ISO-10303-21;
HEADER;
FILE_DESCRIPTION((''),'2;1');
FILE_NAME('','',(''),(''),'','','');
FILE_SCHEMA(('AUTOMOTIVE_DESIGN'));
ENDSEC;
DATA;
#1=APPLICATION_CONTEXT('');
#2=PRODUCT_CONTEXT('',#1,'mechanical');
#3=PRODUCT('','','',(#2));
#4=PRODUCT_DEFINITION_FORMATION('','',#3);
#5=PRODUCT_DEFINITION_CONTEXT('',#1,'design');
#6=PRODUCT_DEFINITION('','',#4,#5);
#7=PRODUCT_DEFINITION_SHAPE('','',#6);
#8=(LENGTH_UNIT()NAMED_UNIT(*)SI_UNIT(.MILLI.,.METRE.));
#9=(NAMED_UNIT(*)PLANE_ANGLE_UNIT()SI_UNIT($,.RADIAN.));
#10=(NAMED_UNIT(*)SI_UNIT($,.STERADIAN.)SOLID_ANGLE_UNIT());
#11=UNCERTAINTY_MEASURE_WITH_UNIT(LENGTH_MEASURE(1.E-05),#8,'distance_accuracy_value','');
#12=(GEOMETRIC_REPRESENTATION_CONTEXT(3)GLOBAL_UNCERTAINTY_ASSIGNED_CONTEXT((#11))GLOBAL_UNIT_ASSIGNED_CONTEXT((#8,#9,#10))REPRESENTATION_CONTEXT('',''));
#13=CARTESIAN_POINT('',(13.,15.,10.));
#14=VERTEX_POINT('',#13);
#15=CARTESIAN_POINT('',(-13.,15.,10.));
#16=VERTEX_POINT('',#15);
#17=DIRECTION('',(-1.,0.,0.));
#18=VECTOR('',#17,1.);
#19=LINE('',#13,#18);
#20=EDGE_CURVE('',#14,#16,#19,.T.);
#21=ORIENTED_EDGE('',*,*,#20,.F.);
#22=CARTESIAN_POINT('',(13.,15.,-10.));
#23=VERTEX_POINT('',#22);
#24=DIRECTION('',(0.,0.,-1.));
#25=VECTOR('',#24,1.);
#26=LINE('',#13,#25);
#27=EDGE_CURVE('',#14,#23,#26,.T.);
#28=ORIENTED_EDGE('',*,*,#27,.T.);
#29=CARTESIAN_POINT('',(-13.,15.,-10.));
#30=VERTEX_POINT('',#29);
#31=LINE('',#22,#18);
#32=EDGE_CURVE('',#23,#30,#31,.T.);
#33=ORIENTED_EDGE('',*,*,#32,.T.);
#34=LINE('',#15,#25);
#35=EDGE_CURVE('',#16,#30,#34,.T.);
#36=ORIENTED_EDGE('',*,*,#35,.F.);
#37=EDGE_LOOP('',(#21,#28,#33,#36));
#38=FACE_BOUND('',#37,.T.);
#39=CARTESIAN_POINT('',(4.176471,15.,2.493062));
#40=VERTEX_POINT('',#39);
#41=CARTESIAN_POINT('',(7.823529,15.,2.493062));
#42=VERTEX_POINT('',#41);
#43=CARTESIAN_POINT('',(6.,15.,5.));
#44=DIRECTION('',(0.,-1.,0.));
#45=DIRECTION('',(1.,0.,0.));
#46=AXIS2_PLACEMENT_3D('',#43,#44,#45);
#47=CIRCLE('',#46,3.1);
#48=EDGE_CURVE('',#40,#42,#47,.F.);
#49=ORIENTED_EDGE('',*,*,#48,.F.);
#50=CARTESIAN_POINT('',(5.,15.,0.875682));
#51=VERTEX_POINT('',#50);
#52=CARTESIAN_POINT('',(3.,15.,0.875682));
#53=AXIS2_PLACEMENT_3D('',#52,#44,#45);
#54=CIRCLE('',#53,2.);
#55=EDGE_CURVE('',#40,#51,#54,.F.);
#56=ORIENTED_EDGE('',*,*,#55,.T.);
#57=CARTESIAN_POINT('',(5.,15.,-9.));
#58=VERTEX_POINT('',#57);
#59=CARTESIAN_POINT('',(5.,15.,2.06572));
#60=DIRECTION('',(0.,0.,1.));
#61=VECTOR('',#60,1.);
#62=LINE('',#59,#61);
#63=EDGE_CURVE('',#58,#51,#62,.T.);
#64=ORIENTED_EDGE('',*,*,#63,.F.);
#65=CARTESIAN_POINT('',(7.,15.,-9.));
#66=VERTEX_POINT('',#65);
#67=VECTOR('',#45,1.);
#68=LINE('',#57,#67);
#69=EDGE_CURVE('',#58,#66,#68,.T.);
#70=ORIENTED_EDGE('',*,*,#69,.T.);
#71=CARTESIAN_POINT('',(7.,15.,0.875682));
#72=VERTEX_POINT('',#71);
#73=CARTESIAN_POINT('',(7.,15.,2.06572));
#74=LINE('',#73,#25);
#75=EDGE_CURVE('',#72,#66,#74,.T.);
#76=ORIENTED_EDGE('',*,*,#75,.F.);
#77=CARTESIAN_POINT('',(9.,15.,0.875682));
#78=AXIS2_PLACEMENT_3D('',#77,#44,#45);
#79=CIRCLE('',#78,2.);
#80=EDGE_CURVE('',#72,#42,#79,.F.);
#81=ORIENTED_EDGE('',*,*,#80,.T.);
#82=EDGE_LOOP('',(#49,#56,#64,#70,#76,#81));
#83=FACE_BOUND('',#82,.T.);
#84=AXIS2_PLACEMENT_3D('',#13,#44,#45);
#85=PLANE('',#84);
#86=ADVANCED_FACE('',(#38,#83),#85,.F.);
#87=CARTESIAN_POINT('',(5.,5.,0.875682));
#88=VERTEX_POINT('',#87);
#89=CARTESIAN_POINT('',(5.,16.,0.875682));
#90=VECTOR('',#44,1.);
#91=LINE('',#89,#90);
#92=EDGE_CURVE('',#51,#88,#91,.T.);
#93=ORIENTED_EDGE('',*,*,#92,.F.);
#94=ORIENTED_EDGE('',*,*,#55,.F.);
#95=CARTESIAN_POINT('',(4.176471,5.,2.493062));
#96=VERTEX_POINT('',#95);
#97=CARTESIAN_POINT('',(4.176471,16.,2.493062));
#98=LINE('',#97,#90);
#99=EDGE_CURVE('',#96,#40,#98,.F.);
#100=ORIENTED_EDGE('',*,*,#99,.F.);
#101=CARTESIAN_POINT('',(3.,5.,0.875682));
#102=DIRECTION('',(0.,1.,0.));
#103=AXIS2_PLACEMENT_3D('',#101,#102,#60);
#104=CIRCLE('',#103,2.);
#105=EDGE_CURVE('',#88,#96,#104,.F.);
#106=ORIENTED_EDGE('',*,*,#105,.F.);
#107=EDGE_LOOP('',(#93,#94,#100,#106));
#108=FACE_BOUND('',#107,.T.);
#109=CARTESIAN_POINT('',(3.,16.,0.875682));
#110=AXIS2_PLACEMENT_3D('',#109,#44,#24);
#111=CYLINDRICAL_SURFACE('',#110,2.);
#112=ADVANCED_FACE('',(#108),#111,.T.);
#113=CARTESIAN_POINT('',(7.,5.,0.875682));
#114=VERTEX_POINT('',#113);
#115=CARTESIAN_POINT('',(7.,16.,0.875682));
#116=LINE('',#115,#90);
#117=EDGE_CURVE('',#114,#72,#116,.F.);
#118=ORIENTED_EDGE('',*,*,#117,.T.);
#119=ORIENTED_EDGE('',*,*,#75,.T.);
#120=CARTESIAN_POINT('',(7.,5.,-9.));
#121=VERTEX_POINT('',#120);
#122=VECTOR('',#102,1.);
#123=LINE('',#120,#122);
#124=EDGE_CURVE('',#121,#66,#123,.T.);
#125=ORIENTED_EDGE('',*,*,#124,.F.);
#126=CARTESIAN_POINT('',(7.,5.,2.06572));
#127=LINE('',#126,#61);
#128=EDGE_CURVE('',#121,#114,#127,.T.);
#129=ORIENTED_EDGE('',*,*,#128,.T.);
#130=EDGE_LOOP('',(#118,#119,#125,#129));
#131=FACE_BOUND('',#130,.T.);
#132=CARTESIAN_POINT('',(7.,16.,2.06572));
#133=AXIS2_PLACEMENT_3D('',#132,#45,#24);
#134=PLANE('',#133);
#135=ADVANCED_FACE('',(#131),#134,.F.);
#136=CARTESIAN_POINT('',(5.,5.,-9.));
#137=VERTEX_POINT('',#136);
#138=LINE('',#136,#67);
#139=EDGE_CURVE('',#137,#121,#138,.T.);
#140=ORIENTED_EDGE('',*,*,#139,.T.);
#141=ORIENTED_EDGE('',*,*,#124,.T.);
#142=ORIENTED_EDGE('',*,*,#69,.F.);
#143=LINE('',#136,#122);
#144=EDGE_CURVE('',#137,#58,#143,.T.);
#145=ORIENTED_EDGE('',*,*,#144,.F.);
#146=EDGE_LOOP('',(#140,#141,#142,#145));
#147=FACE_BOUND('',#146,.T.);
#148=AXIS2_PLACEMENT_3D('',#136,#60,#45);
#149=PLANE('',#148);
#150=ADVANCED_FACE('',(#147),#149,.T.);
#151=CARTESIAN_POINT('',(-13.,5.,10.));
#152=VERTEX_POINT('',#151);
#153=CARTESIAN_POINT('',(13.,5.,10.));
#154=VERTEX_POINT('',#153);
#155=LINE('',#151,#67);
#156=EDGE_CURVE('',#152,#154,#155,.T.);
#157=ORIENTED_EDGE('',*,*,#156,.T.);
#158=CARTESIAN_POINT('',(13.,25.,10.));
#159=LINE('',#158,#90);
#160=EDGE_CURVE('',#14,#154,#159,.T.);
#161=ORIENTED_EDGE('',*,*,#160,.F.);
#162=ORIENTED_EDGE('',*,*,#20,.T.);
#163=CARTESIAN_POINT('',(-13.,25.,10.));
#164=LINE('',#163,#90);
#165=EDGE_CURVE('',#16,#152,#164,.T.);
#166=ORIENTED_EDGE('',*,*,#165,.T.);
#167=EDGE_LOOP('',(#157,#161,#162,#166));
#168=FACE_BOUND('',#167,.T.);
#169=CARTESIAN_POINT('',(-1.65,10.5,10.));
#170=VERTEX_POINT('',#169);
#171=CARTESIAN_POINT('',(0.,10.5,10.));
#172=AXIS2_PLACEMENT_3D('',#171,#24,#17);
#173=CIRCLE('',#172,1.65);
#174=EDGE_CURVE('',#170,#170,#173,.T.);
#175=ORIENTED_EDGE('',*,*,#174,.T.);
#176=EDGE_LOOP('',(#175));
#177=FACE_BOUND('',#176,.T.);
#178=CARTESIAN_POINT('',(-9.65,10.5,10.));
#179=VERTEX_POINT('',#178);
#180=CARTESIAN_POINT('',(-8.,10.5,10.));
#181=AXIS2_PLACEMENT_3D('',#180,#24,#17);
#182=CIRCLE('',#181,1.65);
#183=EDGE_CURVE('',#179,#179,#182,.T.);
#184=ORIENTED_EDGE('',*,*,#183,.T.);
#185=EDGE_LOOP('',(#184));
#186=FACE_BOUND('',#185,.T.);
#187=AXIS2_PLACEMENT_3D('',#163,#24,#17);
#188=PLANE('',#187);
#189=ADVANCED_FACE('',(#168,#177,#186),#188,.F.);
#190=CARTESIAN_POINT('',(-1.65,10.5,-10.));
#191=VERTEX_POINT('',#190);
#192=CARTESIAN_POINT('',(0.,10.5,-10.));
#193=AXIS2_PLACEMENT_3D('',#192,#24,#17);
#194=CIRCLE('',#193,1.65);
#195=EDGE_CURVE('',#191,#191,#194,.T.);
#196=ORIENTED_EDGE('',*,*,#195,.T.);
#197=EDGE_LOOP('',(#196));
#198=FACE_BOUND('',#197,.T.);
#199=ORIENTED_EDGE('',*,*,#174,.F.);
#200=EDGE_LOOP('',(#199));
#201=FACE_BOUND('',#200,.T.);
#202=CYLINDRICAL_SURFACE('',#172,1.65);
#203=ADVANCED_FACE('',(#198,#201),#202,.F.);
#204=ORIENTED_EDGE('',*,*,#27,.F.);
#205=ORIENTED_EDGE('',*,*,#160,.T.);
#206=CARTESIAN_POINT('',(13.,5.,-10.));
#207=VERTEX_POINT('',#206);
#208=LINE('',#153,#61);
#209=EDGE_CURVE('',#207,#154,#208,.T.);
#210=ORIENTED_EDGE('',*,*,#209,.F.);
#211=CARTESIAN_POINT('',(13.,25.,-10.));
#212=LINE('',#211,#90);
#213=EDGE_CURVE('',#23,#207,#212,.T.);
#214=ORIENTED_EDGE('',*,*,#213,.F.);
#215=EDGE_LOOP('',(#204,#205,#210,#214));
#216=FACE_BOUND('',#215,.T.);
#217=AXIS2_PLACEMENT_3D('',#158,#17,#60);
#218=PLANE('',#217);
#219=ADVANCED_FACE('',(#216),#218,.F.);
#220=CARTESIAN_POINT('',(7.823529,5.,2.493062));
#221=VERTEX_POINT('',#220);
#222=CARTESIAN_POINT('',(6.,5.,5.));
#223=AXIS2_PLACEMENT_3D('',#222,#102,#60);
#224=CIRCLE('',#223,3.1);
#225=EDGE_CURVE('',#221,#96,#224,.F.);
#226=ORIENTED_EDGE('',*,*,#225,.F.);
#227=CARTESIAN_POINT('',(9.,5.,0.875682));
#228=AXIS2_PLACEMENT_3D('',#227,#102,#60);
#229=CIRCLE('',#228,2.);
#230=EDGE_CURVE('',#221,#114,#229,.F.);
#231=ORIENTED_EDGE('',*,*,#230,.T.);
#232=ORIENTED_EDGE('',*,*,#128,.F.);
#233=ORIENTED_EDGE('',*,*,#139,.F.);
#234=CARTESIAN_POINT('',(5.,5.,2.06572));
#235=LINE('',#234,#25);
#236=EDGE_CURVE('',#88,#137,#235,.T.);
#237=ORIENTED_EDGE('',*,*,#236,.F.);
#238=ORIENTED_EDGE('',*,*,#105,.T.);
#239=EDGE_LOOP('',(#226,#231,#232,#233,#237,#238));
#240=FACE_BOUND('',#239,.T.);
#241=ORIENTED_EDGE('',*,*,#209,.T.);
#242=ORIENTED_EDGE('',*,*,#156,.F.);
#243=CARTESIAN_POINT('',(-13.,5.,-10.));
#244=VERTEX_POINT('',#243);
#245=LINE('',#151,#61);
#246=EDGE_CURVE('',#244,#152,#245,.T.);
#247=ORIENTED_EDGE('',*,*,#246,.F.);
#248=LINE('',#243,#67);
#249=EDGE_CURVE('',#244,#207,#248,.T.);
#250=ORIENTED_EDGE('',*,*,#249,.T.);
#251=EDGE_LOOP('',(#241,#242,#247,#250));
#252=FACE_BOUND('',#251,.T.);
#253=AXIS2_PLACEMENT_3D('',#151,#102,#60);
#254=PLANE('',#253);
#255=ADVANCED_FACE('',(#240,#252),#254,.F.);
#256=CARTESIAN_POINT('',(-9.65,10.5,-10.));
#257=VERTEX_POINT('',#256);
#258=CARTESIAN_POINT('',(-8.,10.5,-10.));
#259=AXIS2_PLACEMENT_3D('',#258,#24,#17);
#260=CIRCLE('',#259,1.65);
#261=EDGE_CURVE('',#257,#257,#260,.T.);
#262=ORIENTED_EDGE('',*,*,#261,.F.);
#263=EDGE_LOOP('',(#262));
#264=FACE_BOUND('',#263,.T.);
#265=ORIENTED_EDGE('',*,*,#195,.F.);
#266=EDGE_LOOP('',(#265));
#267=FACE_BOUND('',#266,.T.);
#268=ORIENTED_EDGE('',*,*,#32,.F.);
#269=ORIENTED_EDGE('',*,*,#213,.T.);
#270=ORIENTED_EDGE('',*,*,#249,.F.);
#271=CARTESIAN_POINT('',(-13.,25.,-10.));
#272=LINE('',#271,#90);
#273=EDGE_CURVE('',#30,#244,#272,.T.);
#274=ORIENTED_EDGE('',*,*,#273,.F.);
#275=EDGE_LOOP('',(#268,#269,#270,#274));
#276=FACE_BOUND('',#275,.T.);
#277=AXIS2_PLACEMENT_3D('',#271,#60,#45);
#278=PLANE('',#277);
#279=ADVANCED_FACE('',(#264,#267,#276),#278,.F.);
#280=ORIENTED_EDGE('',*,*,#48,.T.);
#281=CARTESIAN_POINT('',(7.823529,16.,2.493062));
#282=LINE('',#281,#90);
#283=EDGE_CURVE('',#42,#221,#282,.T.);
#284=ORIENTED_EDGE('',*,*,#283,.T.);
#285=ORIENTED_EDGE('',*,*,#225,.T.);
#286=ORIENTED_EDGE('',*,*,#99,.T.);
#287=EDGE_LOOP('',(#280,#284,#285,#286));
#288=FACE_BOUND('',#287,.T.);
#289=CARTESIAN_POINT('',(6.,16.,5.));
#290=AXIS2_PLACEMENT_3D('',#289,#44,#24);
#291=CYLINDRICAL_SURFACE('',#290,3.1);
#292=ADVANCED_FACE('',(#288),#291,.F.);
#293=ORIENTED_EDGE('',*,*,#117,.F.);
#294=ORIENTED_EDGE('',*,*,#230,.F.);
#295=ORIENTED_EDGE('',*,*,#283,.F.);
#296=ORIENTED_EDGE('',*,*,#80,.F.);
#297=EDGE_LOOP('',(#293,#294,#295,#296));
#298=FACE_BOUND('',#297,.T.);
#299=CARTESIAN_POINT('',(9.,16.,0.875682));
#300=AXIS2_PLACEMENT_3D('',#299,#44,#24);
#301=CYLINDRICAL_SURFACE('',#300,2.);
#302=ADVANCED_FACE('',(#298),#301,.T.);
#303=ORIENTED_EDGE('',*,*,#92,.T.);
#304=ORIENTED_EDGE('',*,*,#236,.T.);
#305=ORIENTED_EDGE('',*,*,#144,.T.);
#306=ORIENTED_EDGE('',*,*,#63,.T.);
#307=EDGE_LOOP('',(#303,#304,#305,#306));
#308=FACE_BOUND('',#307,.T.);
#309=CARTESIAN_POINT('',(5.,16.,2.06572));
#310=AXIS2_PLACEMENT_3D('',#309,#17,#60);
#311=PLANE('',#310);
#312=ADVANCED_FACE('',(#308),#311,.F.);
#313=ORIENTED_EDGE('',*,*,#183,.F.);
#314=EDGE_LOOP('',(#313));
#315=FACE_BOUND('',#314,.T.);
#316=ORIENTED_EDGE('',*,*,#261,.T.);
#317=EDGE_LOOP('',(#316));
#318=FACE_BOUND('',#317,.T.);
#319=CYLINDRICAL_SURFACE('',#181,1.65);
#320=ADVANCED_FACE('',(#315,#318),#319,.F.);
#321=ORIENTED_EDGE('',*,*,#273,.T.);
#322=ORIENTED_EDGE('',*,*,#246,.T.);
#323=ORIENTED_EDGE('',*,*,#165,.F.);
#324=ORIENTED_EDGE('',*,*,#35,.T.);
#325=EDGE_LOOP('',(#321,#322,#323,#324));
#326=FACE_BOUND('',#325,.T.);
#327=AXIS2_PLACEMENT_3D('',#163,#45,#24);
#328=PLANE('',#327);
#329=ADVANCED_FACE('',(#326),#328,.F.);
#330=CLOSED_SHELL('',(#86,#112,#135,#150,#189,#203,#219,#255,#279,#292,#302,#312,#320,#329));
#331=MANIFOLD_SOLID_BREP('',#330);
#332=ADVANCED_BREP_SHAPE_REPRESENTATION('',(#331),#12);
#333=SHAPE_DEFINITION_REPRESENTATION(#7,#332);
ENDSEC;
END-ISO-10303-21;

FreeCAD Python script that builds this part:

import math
import FreeCAD as App
import Part
import Sketcher
from FreeCAD import Vector
Q = App.Units.Quantity


def edges_at(feature, points):
    """Names of the edges that pass closest to the given points."""
    edges = feature.Shape.Edges
    near = lambda p: min(range(len(edges)), key=lambda i: edges[i].distToShape(Part.Vertex(*p))[0])
    return sorted({f"Edge{near(p) + 1}" for p in points})


def add_polygon(sketch, points):
    """Adds a closed chain of lines whose ends are joined by coincident constraints."""
    first, n = sketch.GeometryCount, len(points)
    for a, b in zip(points, points[1:] + points[:1]):
        sketch.addGeometry(Part.LineSegment(App.Vector(*a, 0), App.Vector(*b, 0)), False)
    for i in range(n):
        sketch.addConstraint(Sketcher.Constraint("Coincident", first + i, 2, first + (i + 1) % n, 1))

doc = App.newDocument("Part")
body = doc.addObject("PartDesign::Body", "Body")

sketch1 = body.newObject("Sketcher::SketchObject", "Sketch")
sketch1.AttachmentSupport = (doc.getObject("XZ_Plane"), [""])
sketch1.MapMode = "FlatFace"
add_polygon(sketch1, [(-13, -10), (-13, 10), (13, 10), (13, -10)])
sketch1.addConstraint([
    Sketcher.Constraint("Vertical", 0),
    Sketcher.Constraint("Horizontal", 1),
    Sketcher.Constraint("Vertical", 2),
    Sketcher.Constraint("Horizontal", 3),
    Sketcher.Constraint("Symmetric", 0, 2, 2, 2, -1, 1),
    Sketcher.Constraint("DistanceX", 1, 1, 1, 2, Q("26 mm")),
    Sketcher.Constraint("DistanceY", 0, 1, 0, 2, Q("20 mm")),
])
pad1 = body.newObject("PartDesign::Pad", "Pad")
pad1.Profile = sketch1
pad1.Length = 25
pad1.Reversed = True

sketch2 = body.newObject("Sketcher::SketchObject", "Sketch001")
sketch2.AttachmentSupport = (doc.getObject("XZ_Plane"), [""])
sketch2.MapMode = "FlatFace"
sketch2.addGeometry([
    Part.LineSegment(Vector(5, 2.06572, 0), Vector(5, -10, 0)),
    Part.LineSegment(Vector(5, -10, 0), Vector(7, -10, 0)),
    Part.LineSegment(Vector(7, -10, 0), Vector(7, 2.06572, 0)),
    Part.ArcOfCircle(Part.Circle(Vector(6, 5, 0), Vector(0, 0, 1), 3.1), math.radians(-71.180937), math.radians(251.180937)),
], False)
sketch2.addConstraint([
    Sketcher.Constraint("Coincident", 0, 2, 1, 1),
    Sketcher.Constraint("Coincident", 1, 2, 2, 1),
    Sketcher.Constraint("Coincident", 2, 2, 3, 1),
    Sketcher.Constraint("Coincident", 3, 2, 0, 1),
    Sketcher.Constraint("Vertical", 0),
    Sketcher.Constraint("Horizontal", 1),
    Sketcher.Constraint("Vertical", 2),
    Sketcher.Constraint("Horizontal", 2, 2, 3, 2),
    Sketcher.Constraint("Radius", 3, Q("3.1 mm")),
    Sketcher.Constraint("DistanceX", 1, 1, 1, 2, Q("2 mm")),
    Sketcher.Constraint("DistanceX", -1, 1, 3, 3, Q("6 mm")),
    Sketcher.Constraint("DistanceY", -1, 1, 3, 3, Q("5 mm")),
    Sketcher.Constraint("DistanceY", 0, 2, -1, 1, Q("10 mm")),
])
pocket1 = body.newObject("PartDesign::Pocket", "Pocket")
pocket1.Profile = sketch2
pocket1.Length = 16
doc.recompute()

fillet = body.newObject("PartDesign::Fillet", "Fillet")
fillet.Base = (pocket1, edges_at(pocket1, [(5, 8, 2.066), (7, 8, 2.066)]))
fillet.Radius = 2

sketch3 = body.newObject("Sketcher::SketchObject", "Sketch002")
sketch3.AttachmentSupport = (doc.getObject("XZ_Plane"), [""])
sketch3.MapMode = "FlatFace"
sketch3.AttachmentOffset = App.Placement(Vector(0, 0, -16), App.Rotation())
sketch3.addGeometry(Part.Circle(Vector(6, 5, 0), Vector(0, 0, 1), 1.25), False)
sketch3.addConstraint([
    Sketcher.Constraint("Diameter", 0, Q("2.5 mm")),
    Sketcher.Constraint("DistanceX", -1, 1, 0, 3, Q("6 mm")),
    Sketcher.Constraint("DistanceY", -1, 1, 0, 3, Q("5 mm")),
])
pocket2 = body.newObject("PartDesign::Pocket", "Pocket001")
pocket2.Profile = sketch3
pocket2.Type = "ThroughAll"

sketch4 = body.newObject("Sketcher::SketchObject", "Sketch003")
sketch4.AttachmentSupport = (doc.getObject("XY_Plane"), [""])
sketch4.MapMode = "FlatFace"
sketch4.AttachmentOffset = App.Placement(Vector(0, 0, -10), App.Rotation())
sketch4.addGeometry([
    Part.Circle(Vector(-8, 10.5, 0), Vector(0, 0, 1), 1.65),
    Part.Circle(Vector(0, 10.5, 0), Vector(0, 0, 1), 1.65),
], False)
sketch4.addConstraint([
    Sketcher.Constraint("Equal", 0, 1),
    Sketcher.Constraint("PointOnObject", 1, 3, -2),
    Sketcher.Constraint("Horizontal", 0, 3, 1, 3),
    Sketcher.Constraint("Diameter", 0, Q("3.3 mm")),
    Sketcher.Constraint("DistanceX", 0, 3, -1, 1, Q("8 mm")),
    Sketcher.Constraint("DistanceY", -1, 1, 0, 3, Q("10.5 mm")),
])
pocket3 = body.newObject("PartDesign::Pocket", "Pocket002")
pocket3.Profile = sketch4
pocket3.Type = "ThroughAll"
pocket3.Reversed = True

sketch5 = body.newObject("Sketcher::SketchObject", "Sketch004")
sketch5.AttachmentSupport = (doc.getObject("YZ_Plane"), [""])
sketch5.MapMode = "FlatFace"
sketch5.AttachmentOffset = App.Placement(Vector(0, 0, 13), App.Rotation())
add_polygon(sketch5, [(5, 10), (0, 10), (0, -10), (5, -10)])
sketch5.addConstraint([
    Sketcher.Constraint("Horizontal", 0),
    Sketcher.Constraint("Vertical", 1),
    Sketcher.Constraint("Horizontal", 2),
    Sketcher.Constraint("Vertical", 3),
    Sketcher.Constraint("Symmetric", 0, 2, 1, 2, -1, 1),
    Sketcher.Constraint("DistanceX", 0, 2, 0, 1, Q("5 mm")),
    Sketcher.Constraint("DistanceY", 1, 2, 1, 1, Q("20 mm")),
])
pocket4 = body.newObject("PartDesign::Pocket", "Pocket003")
pocket4.Profile = sketch5
pocket4.Type = "ThroughAll"

sketch6 = body.newObject("Sketcher::SketchObject", "Sketch005")
sketch6.AttachmentSupport = (doc.getObject("XY_Plane"), [""])
sketch6.MapMode = "FlatFace"
sketch6.AttachmentOffset = App.Placement(Vector(0, 0, -10), App.Rotation())
add_polygon(sketch6, [(13, 25), (13, 15), (-13, 15), (-13, 25)])
sketch6.addConstraint([
    Sketcher.Constraint("Vertical", 0),
    Sketcher.Constraint("Horizontal", 1),
    Sketcher.Constraint("Vertical", 2),
    Sketcher.Constraint("Horizontal", 3),
    Sketcher.Constraint("DistanceX", 1, 2, 1, 1, Q("26 mm")),
    Sketcher.Constraint("DistanceY", 0, 2, 0, 1, Q("10 mm")),
    Sketcher.Constraint("DistanceX", -1, 1, 0, 2, Q("13 mm")),
    Sketcher.Constraint("DistanceY", -1, 1, 0, 2, Q("15 mm")),
])
pocket5 = body.newObject("PartDesign::Pocket", "Pocket004")
pocket5.Profile = sketch6
pocket5.Type = "ThroughAll"
pocket5.Reversed = True

sketch7 = body.newObject("Sketcher::SketchObject", "Sketch006")
sketch7.AttachmentSupport = (doc.getObject("XZ_Plane"), [""])
sketch7.MapMode = "FlatFace"
sketch7.AttachmentOffset = App.Placement(Vector(0, 0, -15), App.Rotation())
add_polygon(sketch7, [(5, -10), (5, -9), (7, -9), (7, -10)])
sketch7.addConstraint([
    Sketcher.Constraint("Vertical", 0),
    Sketcher.Constraint("Horizontal", 1),
    Sketcher.Constraint("Vertical", 2),
    Sketcher.Constraint("Horizontal", 3),
    Sketcher.Constraint("DistanceX", 1, 1, 1, 2, Q("2 mm")),
    Sketcher.Constraint("DistanceY", 0, 1, 0, 2, Q("1 mm")),
    Sketcher.Constraint("DistanceX", -1, 1, 0, 2, Q("5 mm")),
    Sketcher.Constraint("DistanceY", 0, 2, -1, 1, Q("9 mm")),
])
pad2 = body.newObject("PartDesign::Pad", "Pad001")
pad2.Profile = sketch7
pad2.Length = 10

doc.recompute()
